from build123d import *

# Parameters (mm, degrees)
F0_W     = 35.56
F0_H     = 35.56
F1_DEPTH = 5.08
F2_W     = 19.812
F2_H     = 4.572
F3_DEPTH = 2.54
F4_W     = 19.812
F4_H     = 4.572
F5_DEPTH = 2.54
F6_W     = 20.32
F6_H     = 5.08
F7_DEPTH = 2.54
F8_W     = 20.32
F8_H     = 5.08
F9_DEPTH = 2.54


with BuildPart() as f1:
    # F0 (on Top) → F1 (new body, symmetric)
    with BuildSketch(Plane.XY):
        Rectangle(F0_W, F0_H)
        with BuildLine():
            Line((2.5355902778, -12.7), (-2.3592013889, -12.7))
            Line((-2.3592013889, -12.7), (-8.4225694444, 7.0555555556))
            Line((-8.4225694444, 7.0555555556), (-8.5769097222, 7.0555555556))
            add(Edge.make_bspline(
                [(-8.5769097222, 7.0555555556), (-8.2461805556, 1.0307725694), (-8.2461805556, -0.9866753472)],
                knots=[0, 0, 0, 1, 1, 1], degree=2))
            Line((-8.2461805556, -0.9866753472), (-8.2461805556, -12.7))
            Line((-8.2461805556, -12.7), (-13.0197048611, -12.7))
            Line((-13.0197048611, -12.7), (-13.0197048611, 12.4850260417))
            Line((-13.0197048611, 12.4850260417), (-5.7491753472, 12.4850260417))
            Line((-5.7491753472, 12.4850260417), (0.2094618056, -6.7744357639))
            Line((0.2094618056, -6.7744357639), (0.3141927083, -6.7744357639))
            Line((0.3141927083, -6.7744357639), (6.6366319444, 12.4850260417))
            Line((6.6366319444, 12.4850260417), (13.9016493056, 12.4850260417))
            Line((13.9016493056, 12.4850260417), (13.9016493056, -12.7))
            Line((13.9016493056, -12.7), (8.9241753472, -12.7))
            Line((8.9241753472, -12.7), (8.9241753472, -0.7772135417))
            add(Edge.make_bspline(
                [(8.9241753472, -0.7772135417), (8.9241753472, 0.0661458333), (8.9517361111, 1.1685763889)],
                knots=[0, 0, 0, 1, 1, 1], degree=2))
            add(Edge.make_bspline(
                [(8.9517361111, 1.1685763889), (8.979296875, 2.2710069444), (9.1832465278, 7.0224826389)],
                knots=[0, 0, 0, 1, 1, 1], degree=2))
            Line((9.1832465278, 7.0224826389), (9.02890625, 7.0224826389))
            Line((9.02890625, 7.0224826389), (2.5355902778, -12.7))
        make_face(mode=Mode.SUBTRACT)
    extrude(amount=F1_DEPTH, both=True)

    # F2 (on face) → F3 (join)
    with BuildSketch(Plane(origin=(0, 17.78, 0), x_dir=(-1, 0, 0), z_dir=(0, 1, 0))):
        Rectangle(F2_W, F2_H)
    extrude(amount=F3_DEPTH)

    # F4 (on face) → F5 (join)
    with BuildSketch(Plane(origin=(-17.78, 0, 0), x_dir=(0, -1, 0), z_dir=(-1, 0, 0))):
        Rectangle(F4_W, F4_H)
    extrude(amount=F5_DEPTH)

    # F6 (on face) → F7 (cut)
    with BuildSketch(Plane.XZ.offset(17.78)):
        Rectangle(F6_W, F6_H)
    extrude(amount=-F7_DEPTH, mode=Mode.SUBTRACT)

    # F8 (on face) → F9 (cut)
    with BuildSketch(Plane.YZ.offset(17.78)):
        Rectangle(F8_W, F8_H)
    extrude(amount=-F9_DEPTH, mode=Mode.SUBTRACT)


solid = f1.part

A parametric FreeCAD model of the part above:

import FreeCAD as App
import Part
import Sketcher
from FreeCAD import Vector
Q = App.Units.Quantity

doc = App.newDocument("Part")
params = doc.addObject("Spreadsheet::Sheet", "Params")
for row, (alias, value) in enumerate([
    ("sketch1_width", "1.4 in"),
    ("pad1_length", "0.4 in"),
    ("sketch2_width", "0.78 in"),
    ("sketch2_height", "0.18 in"),
    ("pad2_length", "0.1 in"),
    ("sketch3_width", "0.78 in"),
    ("sketch3_height", "0.18 in"),
    ("pad3_length", "0.1 in"),
    ("sketch4_width", "0.8 in"),
    ("sketch4_height", "0.2 in"),
    ("pocket1_length", "0.1 in"),
    ("sketch5_width", "0.8 in"),
    ("sketch5_height", "0.2 in"),
    ("pocket2_length", "0.1 in"),
], start=1):
    params.set(f"A{row}", alias)
    params.set(f"B{row}", "=" + value)
    params.setAlias(f"B{row}", alias)

body = doc.addObject("PartDesign::Body", "Body")

# Sketch on XY plane
sketch1 = body.newObject("Sketcher::SketchObject", "Sketch")
sketch1.AttachmentSupport = (doc.getObject("XY_Plane"), [""])
sketch1.MapMode = "FlatFace"
sketch1.addGeometry([
    Part.LineSegment(Vector(-17.78, 17.78, 0), Vector(-17.78, -17.78, 0)),  # 0
    Part.LineSegment(Vector(-17.78, -17.78, 0), Vector(17.78, -17.78, 0)),  # 1
    Part.LineSegment(Vector(17.78, -17.78, 0), Vector(17.78, 17.78, 0)),  # 2
    Part.LineSegment(Vector(17.78, 17.78, 0), Vector(-17.78, 17.78, 0)),  # 3
    Part.LineSegment(Vector(9.028906, 7.022483, 0), Vector(2.53559, -12.7, 0)),  # 4
    Part.LineSegment(Vector(2.53559, -12.7, 0), Vector(-2.359201, -12.7, 0)),  # 5
    Part.LineSegment(Vector(-2.359201, -12.7, 0), Vector(-8.422569, 7.055556, 0)),  # 6
    Part.LineSegment(Vector(-8.422569, 7.055556, 0), Vector(-8.57691, 7.055556, 0)),  # 7
    Part.BSplineCurve([Vector(-8.57691, 7.055556, 0), Vector(-8.246181, 1.030773, 0), Vector(-8.246181, -0.986675, 0)], [3, 3], [0, 1], False, 2, [1, 1, 1], False),  # 8
    Part.LineSegment(Vector(-8.246181, -0.986675, 0), Vector(-8.246181, -12.7, 0)),  # 9
    Part.LineSegment(Vector(-8.246181, -12.7, 0), Vector(-13.019705, -12.7, 0)),  # 10
    Part.LineSegment(Vector(-13.019705, -12.7, 0), Vector(-13.019705, 12.485026, 0)),  # 11
    Part.LineSegment(Vector(-13.019705, 12.485026, 0), Vector(-5.749175, 12.485026, 0)),  # 12
    Part.LineSegment(Vector(-5.749175, 12.485026, 0), Vector(0.209462, -6.774436, 0)),  # 13
    Part.LineSegment(Vector(0.209462, -6.774436, 0), Vector(0.314193, -6.774436, 0)),  # 14
    Part.LineSegment(Vector(0.314193, -6.774436, 0), Vector(6.636632, 12.485026, 0)),  # 15
    Part.LineSegment(Vector(6.636632, 12.485026, 0), Vector(13.901649, 12.485026, 0)),  # 16
    Part.LineSegment(Vector(13.901649, 12.485026, 0), Vector(13.901649, -12.7, 0)),  # 17
    Part.LineSegment(Vector(13.901649, -12.7, 0), Vector(8.924175, -12.7, 0)),  # 18
    Part.LineSegment(Vector(8.924175, -12.7, 0), Vector(8.924175, -0.777214, 0)),  # 19
    Part.BSplineCurve([Vector(8.924175, -0.777214, 0), Vector(8.924175, 0.066146, 0), Vector(8.951736, 1.168576, 0)], [3, 3], [0, 1], False, 2, [1, 1, 1], False),  # 20
    Part.BSplineCurve([Vector(8.951736, 1.168576, 0), Vector(8.979297, 2.271007, 0), Vector(9.183247, 7.022483, 0)], [3, 3], [0, 1], False, 2, [1, 1, 1], False),  # 21
    Part.LineSegment(Vector(9.183247, 7.022483, 0), Vector(9.028906, 7.022483, 0)),  # 22
], False)
sketch1.addConstraint([
    Sketcher.Constraint("Block", 8),
    Sketcher.Constraint("Block", 20),
    Sketcher.Constraint("Block", 21),
    Sketcher.Constraint("Coincident", 0, 2, 1, 1),
    Sketcher.Constraint("Coincident", 1, 2, 2, 1),
    Sketcher.Constraint("Coincident", 2, 2, 3, 1),
    Sketcher.Constraint("Coincident", 3, 2, 0, 1),
    Sketcher.Constraint("Coincident", 4, 2, 5, 1),
    Sketcher.Constraint("Coincident", 5, 2, 6, 1),
    Sketcher.Constraint("Coincident", 6, 2, 7, 1),
    Sketcher.Constraint("Coincident", 7, 2, 8, 1),
    Sketcher.Constraint("Coincident", 8, 2, 9, 1),
    Sketcher.Constraint("Coincident", 9, 2, 10, 1),
    Sketcher.Constraint("Coincident", 10, 2, 11, 1),
    Sketcher.Constraint("Coincident", 11, 2, 12, 1),
    Sketcher.Constraint("Coincident", 12, 2, 13, 1),
    Sketcher.Constraint("Coincident", 13, 2, 14, 1),
    Sketcher.Constraint("Coincident", 14, 2, 15, 1),
    Sketcher.Constraint("Coincident", 15, 2, 16, 1),
    Sketcher.Constraint("Coincident", 16, 2, 17, 1),
    Sketcher.Constraint("Coincident", 17, 2, 18, 1),
    Sketcher.Constraint("Coincident", 18, 2, 19, 1),
    Sketcher.Constraint("Coincident", 19, 2, 20, 1),
    Sketcher.Constraint("Coincident", 21, 2, 22, 1),
    Sketcher.Constraint("Coincident", 22, 2, 4, 1),
    Sketcher.Constraint("Vertical", 0),
    Sketcher.Constraint("Horizontal", 1),
    Sketcher.Constraint("Vertical", 2),
    Sketcher.Constraint("Horizontal", 3),
    Sketcher.Constraint("Horizontal", 5),
    Sketcher.Constraint("Horizontal", 7),
    Sketcher.Constraint("Vertical", 9),
    Sketcher.Constraint("Horizontal", 10),
    Sketcher.Constraint("Vertical", 11),
    Sketcher.Constraint("Horizontal", 12),
    Sketcher.Constraint("Horizontal", 14),
    Sketcher.Constraint("Horizontal", 16),
    Sketcher.Constraint("Vertical", 17),
    Sketcher.Constraint("Horizontal", 18),
    Sketcher.Constraint("Vertical", 19),
    Sketcher.Constraint("Horizontal", 22),
    Sketcher.Constraint("Symmetric", 0, 2, 2, 2, -1, 1),
    Sketcher.Constraint("Horizontal", 5, 2, 9, 2),
    Sketcher.Constraint("Horizontal", 12, 2, 15, 2),
    Sketcher.Constraint("Horizontal", 10, 2, 17, 2),
    Sketcher.Constraint("Equal", 7, 22),
    Sketcher.Constraint("Equal", 3, 0),
    Sketcher.Constraint("DistanceX", 1, 1, 1, 2, Q("1.4 in")),
    Sketcher.Constraint("DistanceY", 4, 2, -1, 1, Q("0.5 in")),
    Sketcher.Constraint("DistanceX", 7, 2, 4, 2, Q("0.4375 in")),
    Sketcher.Constraint("Distance", 4, Q("20.763898 mm")),
    Sketcher.Constraint("Distance", 6, Q("20.665101 mm")),
    Sketcher.Constraint("DistanceX", 12, 1, 12, 2, Q("7.27053 mm")),
    Sketcher.Constraint("DistanceX", 14, 1, 14, 2, Q("0.104731 mm")),
    Sketcher.Constraint("DistanceX", 6, 2, 15, 2, Q("15.059201 mm")),
    Sketcher.Constraint("Distance", 15, Q("20.270671 mm")),
    Sketcher.Constraint("DistanceX", 10, 2, 10, 1, Q("4.773524 mm")),
    Sketcher.Constraint("DistanceX", 16, 1, 16, 2, Q("7.265017 mm")),
    Sketcher.Constraint("DistanceY", 11, 1, 11, 2, Q("25.185026 mm")),
    Sketcher.Constraint("DistanceX", -1, 1, 13, 2, Q("0.209462 mm")),
])
sketch1.setExpression("Constraints[47]", "Params.sketch1_width")
pad1 = body.newObject("PartDesign::Pad", "Pad")
pad1.Profile = sketch1
pad1.setExpression("Length", "Params.pad1_length")
pad1.Midplane = True

# Sketch on XZ plane
sketch2 = body.newObject("Sketcher::SketchObject", "Sketch001")
sketch2.AttachmentSupport = (doc.getObject("XZ_Plane"), [""])
sketch2.MapMode = "FlatFace"
sketch2.AttachmentOffset = App.Placement(Vector(0, 0, -0.7 * 25.4), App.Rotation())
sketch2.addGeometry([
    Part.LineSegment(Vector(9.906, 2.286, 0), Vector(9.906, -2.286, 0)),
    Part.LineSegment(Vector(9.906, -2.286, 0), Vector(-9.906, -2.286, 0)),
    Part.LineSegment(Vector(-9.906, -2.286, 0), Vector(-9.906, 2.286, 0)),
    Part.LineSegment(Vector(-9.906, 2.286, 0), Vector(9.906, 2.286, 0)),
], False)
sketch2.addConstraint([
    Sketcher.Constraint("Coincident", 0, 2, 1, 1),
    Sketcher.Constraint("Coincident", 1, 2, 2, 1),
    Sketcher.Constraint("Coincident", 2, 2, 3, 1),
    Sketcher.Constraint("Coincident", 3, 2, 0, 1),
    Sketcher.Constraint("Vertical", 0),
    Sketcher.Constraint("Horizontal", 1),
    Sketcher.Constraint("Vertical", 2),
    Sketcher.Constraint("Horizontal", 3),
    Sketcher.Constraint("Symmetric", 0, 2, 2, 2, -1, 1),
    Sketcher.Constraint("DistanceX", 1, 2, 1, 1, Q("0.78 in")),
    Sketcher.Constraint("DistanceY", 0, 2, 0, 1, Q("0.18 in")),
])
sketch2.setExpression("Constraints[9]", "Params.sketch2_width")
sketch2.setExpression("Constraints[10]", "Params.sketch2_height")
pad2 = body.newObject("PartDesign::Pad", "Pad001")
pad2.Profile = sketch2
pad2.setExpression("Length", "Params.pad2_length")
pad2.Reversed = True

# Sketch on YZ plane
sketch3 = body.newObject("Sketcher::SketchObject", "Sketch002")
sketch3.AttachmentSupport = (doc.getObject("YZ_Plane"), [""])
sketch3.MapMode = "FlatFace"
sketch3.AttachmentOffset = App.Placement(Vector(0, 0, -0.7 * 25.4), App.Rotation())
sketch3.addGeometry([
    Part.LineSegment(Vector(9.906, 2.286, 0), Vector(9.906, -2.286, 0)),
    Part.LineSegment(Vector(9.906, -2.286, 0), Vector(-9.906, -2.286, 0)),
    Part.LineSegment(Vector(-9.906, -2.286, 0), Vector(-9.906, 2.286, 0)),
    Part.LineSegment(Vector(-9.906, 2.286, 0), Vector(9.906, 2.286, 0)),
], False)
sketch3.addConstraint([
    Sketcher.Constraint("Coincident", 0, 2, 1, 1),
    Sketcher.Constraint("Coincident", 1, 2, 2, 1),
    Sketcher.Constraint("Coincident", 2, 2, 3, 1),
    Sketcher.Constraint("Coincident", 3, 2, 0, 1),
    Sketcher.Constraint("Vertical", 0),
    Sketcher.Constraint("Horizontal", 1),
    Sketcher.Constraint("Vertical", 2),
    Sketcher.Constraint("Horizontal", 3),
    Sketcher.Constraint("Symmetric", 0, 2, 2, 2, -1, 1),
    Sketcher.Constraint("DistanceX", 1, 2, 1, 1, Q("0.78 in")),
    Sketcher.Constraint("DistanceY", 0, 2, 0, 1, Q("0.18 in")),
])
sketch3.setExpression("Constraints[9]", "Params.sketch3_width")
sketch3.setExpression("Constraints[10]", "Params.sketch3_height")
pad3 = body.newObject("PartDesign::Pad", "Pad002")
pad3.Profile = sketch3
pad3.setExpression("Length", "Params.pad3_length")
pad3.Reversed = True

# Sketch on XZ plane
sketch4 = body.newObject("Sketcher::SketchObject", "Sketch003")
sketch4.AttachmentSupport = (doc.getObject("XZ_Plane"), [""])
sketch4.MapMode = "FlatFace"
sketch4.AttachmentOffset = App.Placement(Vector(0, 0, 0.7 * 25.4), App.Rotation())
sketch4.addGeometry([
    Part.LineSegment(Vector(-10.16, 2.54, 0), Vector(-10.16, -2.54, 0)),
    Part.LineSegment(Vector(-10.16, -2.54, 0), Vector(10.16, -2.54, 0)),
    Part.LineSegment(Vector(10.16, -2.54, 0), Vector(10.16, 2.54, 0)),
    Part.LineSegment(Vector(10.16, 2.54, 0), Vector(-10.16, 2.54, 0)),
], False)
sketch4.addConstraint([
    Sketcher.Constraint("Coincident", 0, 2, 1, 1),
    Sketcher.Constraint("Coincident", 1, 2, 2, 1),
    Sketcher.Constraint("Coincident", 2, 2, 3, 1),
    Sketcher.Constraint("Coincident", 3, 2, 0, 1),
    Sketcher.Constraint("Vertical", 0),
    Sketcher.Constraint("Horizontal", 1),
    Sketcher.Constraint("Vertical", 2),
    Sketcher.Constraint("Horizontal", 3),
    Sketcher.Constraint("Symmetric", 0, 2, 2, 2, -1, 1),
    Sketcher.Constraint("DistanceX", 1, 1, 1, 2, Q("0.8 in")),
    Sketcher.Constraint("DistanceY", 0, 2, 0, 1, Q("0.2 in")),
])
sketch4.setExpression("Constraints[9]", "Params.sketch4_width")
sketch4.setExpression("Constraints[10]", "Params.sketch4_height")
pocket1 = body.newObject("PartDesign::Pocket", "Pocket")
pocket1.Profile = sketch4
pocket1.setExpression("Length", "Params.pocket1_length")

# Sketch on YZ plane
sketch5 = body.newObject("Sketcher::SketchObject", "Sketch004")
sketch5.AttachmentSupport = (doc.getObject("YZ_Plane"), [""])
sketch5.MapMode = "FlatFace"
sketch5.AttachmentOffset = App.Placement(Vector(0, 0, 0.7 * 25.4), App.Rotation())
sketch5.addGeometry([
    Part.LineSegment(Vector(-10.16, 2.54, 0), Vector(-10.16, -2.54, 0)),
    Part.LineSegment(Vector(-10.16, -2.54, 0), Vector(10.16, -2.54, 0)),
    Part.LineSegment(Vector(10.16, -2.54, 0), Vector(10.16, 2.54, 0)),
    Part.LineSegment(Vector(10.16, 2.54, 0), Vector(-10.16, 2.54, 0)),
], False)
sketch5.addConstraint([
    Sketcher.Constraint("Coincident", 0, 2, 1, 1),
    Sketcher.Constraint("Coincident", 1, 2, 2, 1),
    Sketcher.Constraint("Coincident", 2, 2, 3, 1),
    Sketcher.Constraint("Coincident", 3, 2, 0, 1),
    Sketcher.Constraint("Vertical", 0),
    Sketcher.Constraint("Horizontal", 1),
    Sketcher.Constraint("Vertical", 2),
    Sketcher.Constraint("Horizontal", 3),
    Sketcher.Constraint("Symmetric", 0, 2, 2, 2, -1, 1),
    Sketcher.Constraint("DistanceX", 1, 1, 1, 2, Q("0.8 in")),
    Sketcher.Constraint("DistanceY", 0, 2, 0, 1, Q("0.2 in")),
])
sketch5.setExpression("Constraints[9]", "Params.sketch5_width")
sketch5.setExpression("Constraints[10]", "Params.sketch5_height")
pocket2 = body.newObject("PartDesign::Pocket", "Pocket001")
pocket2.Profile = sketch5
pocket2.setExpression("Length", "Params.pocket2_length")

doc.recompute()
